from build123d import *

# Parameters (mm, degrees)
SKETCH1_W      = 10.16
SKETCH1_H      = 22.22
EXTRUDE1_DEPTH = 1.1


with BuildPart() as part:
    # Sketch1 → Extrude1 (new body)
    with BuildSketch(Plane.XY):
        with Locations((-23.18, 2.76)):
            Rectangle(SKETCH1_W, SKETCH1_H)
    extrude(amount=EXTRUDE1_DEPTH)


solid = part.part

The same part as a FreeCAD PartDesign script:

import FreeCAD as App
import Part
import Sketcher


def add_polygon(sketch, points):
    """Adds a closed chain of lines whose ends are joined by coincident constraints."""
    first, n = sketch.GeometryCount, len(points)
    for a, b in zip(points, points[1:] + points[:1]):
        sketch.addGeometry(Part.LineSegment(App.Vector(*a, 0), App.Vector(*b, 0)), False)
    for i in range(n):
        sketch.addConstraint(Sketcher.Constraint("Coincident", first + i, 2, first + (i + 1) % n, 1))

doc = App.newDocument("Part")
body = doc.addObject("PartDesign::Body", "Body")

sketch1 = body.newObject("Sketcher::SketchObject", "Sketch")
sketch1.AttachmentSupport = (doc.getObject("XY_Plane"), [""])
sketch1.MapMode = "FlatFace"
add_polygon(sketch1, [(-28, 14), (-28, -8), (-18, -8), (-18, 14)])
sketch1.addConstraint([
    Sketcher.Constraint("Vertical", 0),
    Sketcher.Constraint("Horizontal", 1),
    Sketcher.Constraint("Vertical", 2),
    Sketcher.Constraint("Horizontal", 3),
    Sketcher.Constraint("DistanceX", 1, 1, 1, 2, 10.16),
    Sketcher.Constraint("DistanceY", 0, 2, 0, 1, 22.22),
    Sketcher.Constraint("DistanceX", 1, 2, -1, 1, 18.1),
    Sketcher.Constraint("DistanceY", 0, 2, -1, 1, 8.35),
])
pad1 = body.newObject("PartDesign::Pad", "Pad")
pad1.Profile = sketch1
pad1.Length = 1.1

doc.recompute()
